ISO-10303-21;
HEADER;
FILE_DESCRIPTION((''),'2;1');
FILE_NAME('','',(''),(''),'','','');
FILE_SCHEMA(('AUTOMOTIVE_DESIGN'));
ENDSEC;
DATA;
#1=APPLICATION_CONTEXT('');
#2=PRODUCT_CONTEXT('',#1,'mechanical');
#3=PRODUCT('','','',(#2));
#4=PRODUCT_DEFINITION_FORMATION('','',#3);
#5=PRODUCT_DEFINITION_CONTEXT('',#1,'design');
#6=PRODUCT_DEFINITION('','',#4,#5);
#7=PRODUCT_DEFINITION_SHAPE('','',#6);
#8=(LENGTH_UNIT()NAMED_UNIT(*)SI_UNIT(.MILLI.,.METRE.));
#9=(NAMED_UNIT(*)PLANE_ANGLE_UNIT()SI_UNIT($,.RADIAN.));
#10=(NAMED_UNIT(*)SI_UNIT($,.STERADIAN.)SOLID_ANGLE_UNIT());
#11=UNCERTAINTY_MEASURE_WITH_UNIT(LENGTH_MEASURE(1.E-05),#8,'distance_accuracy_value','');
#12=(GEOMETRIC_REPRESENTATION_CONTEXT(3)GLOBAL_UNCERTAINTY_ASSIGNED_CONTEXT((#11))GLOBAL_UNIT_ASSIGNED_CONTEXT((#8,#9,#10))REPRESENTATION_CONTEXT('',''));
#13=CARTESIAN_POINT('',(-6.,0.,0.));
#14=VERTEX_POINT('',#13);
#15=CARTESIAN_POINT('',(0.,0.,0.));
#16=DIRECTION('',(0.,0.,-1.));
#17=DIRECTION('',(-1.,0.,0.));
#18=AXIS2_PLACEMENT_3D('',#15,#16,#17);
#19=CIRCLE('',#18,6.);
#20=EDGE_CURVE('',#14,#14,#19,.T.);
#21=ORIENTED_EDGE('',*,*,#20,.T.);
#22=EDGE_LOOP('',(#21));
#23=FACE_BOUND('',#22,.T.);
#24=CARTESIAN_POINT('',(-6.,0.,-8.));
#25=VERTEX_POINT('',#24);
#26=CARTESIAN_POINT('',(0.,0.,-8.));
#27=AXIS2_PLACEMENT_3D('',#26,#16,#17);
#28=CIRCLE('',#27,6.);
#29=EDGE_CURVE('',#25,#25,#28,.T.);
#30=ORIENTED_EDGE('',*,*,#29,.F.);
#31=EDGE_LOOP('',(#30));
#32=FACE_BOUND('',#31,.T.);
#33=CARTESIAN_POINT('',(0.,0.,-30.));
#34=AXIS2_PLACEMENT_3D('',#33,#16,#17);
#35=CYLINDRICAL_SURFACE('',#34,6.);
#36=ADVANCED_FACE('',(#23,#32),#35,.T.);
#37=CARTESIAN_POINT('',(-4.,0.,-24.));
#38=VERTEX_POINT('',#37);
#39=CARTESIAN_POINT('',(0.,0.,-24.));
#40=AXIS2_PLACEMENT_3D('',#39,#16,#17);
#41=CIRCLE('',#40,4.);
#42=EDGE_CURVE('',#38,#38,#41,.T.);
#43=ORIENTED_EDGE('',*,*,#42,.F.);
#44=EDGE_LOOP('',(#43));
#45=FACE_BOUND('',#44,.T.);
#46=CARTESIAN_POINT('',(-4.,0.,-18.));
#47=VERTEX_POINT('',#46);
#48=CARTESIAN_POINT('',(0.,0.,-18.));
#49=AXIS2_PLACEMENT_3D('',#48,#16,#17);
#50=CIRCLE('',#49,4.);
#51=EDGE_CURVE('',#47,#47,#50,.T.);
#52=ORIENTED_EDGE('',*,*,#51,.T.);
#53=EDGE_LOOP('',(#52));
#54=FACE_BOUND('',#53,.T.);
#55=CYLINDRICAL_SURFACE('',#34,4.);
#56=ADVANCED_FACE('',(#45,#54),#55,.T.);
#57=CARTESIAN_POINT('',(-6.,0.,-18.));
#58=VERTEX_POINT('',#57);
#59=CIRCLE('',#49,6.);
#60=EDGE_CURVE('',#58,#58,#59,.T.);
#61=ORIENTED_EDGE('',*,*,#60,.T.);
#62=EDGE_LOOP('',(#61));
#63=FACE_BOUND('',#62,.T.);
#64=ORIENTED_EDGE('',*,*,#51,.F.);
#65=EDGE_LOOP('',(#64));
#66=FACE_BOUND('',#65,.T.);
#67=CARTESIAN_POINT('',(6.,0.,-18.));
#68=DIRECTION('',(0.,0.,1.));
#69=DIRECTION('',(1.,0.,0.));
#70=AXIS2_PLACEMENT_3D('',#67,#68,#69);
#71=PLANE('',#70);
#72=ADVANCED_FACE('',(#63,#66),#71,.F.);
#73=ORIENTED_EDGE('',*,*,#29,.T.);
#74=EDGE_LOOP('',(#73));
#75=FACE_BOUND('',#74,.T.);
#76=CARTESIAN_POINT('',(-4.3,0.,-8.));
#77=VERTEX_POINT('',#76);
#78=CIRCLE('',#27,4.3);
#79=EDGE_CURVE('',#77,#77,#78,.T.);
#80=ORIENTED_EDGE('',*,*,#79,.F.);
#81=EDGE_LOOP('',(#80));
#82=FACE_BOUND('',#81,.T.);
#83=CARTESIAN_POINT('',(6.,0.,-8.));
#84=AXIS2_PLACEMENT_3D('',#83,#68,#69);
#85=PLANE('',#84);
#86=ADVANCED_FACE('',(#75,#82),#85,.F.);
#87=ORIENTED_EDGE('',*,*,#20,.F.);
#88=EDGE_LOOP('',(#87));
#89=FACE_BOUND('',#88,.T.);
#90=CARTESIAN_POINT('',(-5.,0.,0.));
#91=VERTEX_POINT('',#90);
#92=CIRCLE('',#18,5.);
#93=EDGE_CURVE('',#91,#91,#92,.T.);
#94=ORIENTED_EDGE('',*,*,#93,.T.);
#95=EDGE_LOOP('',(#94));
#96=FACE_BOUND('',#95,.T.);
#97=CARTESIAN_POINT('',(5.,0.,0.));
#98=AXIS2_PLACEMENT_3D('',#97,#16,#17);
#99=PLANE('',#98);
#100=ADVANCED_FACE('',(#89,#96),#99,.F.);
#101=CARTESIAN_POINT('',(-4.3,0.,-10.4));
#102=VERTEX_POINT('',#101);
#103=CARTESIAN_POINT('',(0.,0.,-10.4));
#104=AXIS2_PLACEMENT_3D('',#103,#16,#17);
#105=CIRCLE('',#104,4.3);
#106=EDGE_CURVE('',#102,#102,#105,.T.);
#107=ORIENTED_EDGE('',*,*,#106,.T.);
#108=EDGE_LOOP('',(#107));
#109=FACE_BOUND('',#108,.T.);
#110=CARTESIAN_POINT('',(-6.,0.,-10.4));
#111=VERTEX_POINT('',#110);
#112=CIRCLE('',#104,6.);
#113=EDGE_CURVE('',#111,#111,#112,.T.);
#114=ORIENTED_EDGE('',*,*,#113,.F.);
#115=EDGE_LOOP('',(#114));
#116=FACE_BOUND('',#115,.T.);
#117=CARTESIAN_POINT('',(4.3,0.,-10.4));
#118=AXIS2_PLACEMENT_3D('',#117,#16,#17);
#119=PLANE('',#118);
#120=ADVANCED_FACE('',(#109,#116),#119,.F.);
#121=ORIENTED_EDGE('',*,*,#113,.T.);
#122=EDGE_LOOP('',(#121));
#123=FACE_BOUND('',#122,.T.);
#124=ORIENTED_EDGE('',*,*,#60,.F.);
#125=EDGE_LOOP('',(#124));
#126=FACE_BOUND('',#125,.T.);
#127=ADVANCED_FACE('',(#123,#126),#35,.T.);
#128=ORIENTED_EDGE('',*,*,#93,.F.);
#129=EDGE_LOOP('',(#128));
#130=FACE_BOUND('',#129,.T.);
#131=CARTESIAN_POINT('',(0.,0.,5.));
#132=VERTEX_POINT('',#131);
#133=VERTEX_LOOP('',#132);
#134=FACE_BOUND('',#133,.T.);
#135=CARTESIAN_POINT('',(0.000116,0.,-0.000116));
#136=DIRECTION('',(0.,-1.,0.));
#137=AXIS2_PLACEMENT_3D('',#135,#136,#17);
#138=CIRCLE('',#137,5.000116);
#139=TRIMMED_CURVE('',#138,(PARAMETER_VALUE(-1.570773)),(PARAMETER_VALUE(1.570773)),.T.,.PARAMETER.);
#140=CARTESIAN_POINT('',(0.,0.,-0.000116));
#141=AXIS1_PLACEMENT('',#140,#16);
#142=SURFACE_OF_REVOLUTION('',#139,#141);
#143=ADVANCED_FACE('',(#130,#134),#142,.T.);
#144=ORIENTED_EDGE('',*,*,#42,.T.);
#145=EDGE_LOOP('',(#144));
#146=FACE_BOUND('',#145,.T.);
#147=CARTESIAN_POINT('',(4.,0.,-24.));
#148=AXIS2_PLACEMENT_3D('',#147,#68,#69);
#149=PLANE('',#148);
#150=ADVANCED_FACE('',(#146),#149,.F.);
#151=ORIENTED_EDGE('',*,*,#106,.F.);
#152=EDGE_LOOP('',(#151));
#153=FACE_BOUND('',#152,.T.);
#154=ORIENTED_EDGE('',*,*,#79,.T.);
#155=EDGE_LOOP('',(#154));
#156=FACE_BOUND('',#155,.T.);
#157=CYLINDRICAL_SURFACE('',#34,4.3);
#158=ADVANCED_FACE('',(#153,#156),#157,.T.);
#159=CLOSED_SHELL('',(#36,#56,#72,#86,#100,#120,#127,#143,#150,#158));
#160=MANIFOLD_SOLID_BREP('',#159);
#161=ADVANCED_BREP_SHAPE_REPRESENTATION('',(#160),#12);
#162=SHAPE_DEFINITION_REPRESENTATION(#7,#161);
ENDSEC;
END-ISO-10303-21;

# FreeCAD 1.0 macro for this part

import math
import FreeCAD as App
import Part
import Sketcher
from FreeCAD import Vector
Q = App.Units.Quantity

doc = App.newDocument("Part")
body = doc.addObject("PartDesign::Body", "Body")

# Sketch on XZ plane
sketch1 = body.newObject("Sketcher::SketchObject", "Sketch")
sketch1.AttachmentSupport = (doc.getObject("XZ_Plane"), [""])
sketch1.MapMode = "FlatFace"
sketch1.addGeometry(Part.LineSegment(Vector(5, 0, 0), Vector(6, 0, 0)), False)
sketch1.addGeometry(Part.LineSegment(Vector(6, 0, 0), Vector(6, -8, 0)), False)
sketch1.addGeometry(Part.LineSegment(Vector(6, -8, 0), Vector(4.3, -8, 0)), False)
sketch1.addGeometry(Part.LineSegment(Vector(4.3, -8, 0), Vector(4.3, -10.4, 0)), False)
sketch1.addGeometry(Part.LineSegment(Vector(4.3, -10.4, 0), Vector(6, -10.4, 0)), False)
sketch1.addGeometry(Part.LineSegment(Vector(6, -10.4, 0), Vector(6, -18, 0)), False)
sketch1.addGeometry(Part.LineSegment(Vector(6, -18, 0), Vector(4, -18, 0)), False)
sketch1.addGeometry(Part.LineSegment(Vector(4, -18, 0), Vector(4, -24, 0)), False)
sketch1.addGeometry(Part.LineSegment(Vector(4, -24, 0), Vector(0, -24, 0)), False)
sketch1.addGeometry(Part.LineSegment(Vector(0, -24, 0), Vector(0, 5, 0)), False)
sketch1.addGeometry(Part.ArcOfCircle(Part.Circle(Vector(0, 0, 0), Vector(0, 0, 1), 5), math.radians(0), math.radians(90)), False)
sketch1.addConstraint(Sketcher.Constraint("Coincident", 0, 2, 1, 1))
sketch1.addConstraint(Sketcher.Constraint("Coincident", 1, 2, 2, 1))
sketch1.addConstraint(Sketcher.Constraint("Coincident", 2, 2, 3, 1))
sketch1.addConstraint(Sketcher.Constraint("Coincident", 3, 2, 4, 1))
sketch1.addConstraint(Sketcher.Constraint("Coincident", 4, 2, 5, 1))
sketch1.addConstraint(Sketcher.Constraint("Coincident", 5, 2, 6, 1))
sketch1.addConstraint(Sketcher.Constraint("Coincident", 6, 2, 7, 1))
sketch1.addConstraint(Sketcher.Constraint("Coincident", 7, 2, 8, 1))
sketch1.addConstraint(Sketcher.Constraint("Coincident", 8, 2, 9, 1))
sketch1.addConstraint(Sketcher.Constraint("Coincident", 9, 2, 10, 2))
sketch1.addConstraint(Sketcher.Constraint("Coincident", 10, 1, 0, 1))
sketch1.addConstraint(Sketcher.Constraint("Horizontal", 0))
sketch1.addConstraint(Sketcher.Constraint("Vertical", 1))
sketch1.addConstraint(Sketcher.Constraint("Horizontal", 2))
sketch1.addConstraint(Sketcher.Constraint("Vertical", 3))
sketch1.addConstraint(Sketcher.Constraint("Horizontal", 4))
sketch1.addConstraint(Sketcher.Constraint("Vertical", 5))
sketch1.addConstraint(Sketcher.Constraint("Horizontal", 6))
sketch1.addConstraint(Sketcher.Constraint("Vertical", 7))
sketch1.addConstraint(Sketcher.Constraint("Horizontal", 8))
sketch1.addConstraint(Sketcher.Constraint("Vertical", 9))
sketch1.addConstraint(Sketcher.Constraint("PointOnObject", 0, 2, -1))
sketch1.addConstraint(Sketcher.Constraint("PointOnObject", 8, 2, -2))
sketch1.addConstraint(Sketcher.Constraint("Vertical", 1, 2, 4, 2))
sketch1.addConstraint(Sketcher.Constraint("DistanceX", 0, 1, 0, 2, Q("1 mm")))
sketch1.addConstraint(Sketcher.Constraint("DistanceX", 6, 2, 6, 1, Q("2 mm")))
sketch1.addConstraint(Sketcher.Constraint("DistanceX", 8, 2, 8, 1, Q("4 mm")))
sketch1.addConstraint(Sketcher.Constraint("DistanceY", 1, 2, 1, 1, Q("8 mm")))
sketch1.addConstraint(Sketcher.Constraint("DistanceY", 7, 2, 7, 1, Q("6 mm")))
sketch1.addConstraint(Sketcher.Constraint("DistanceY", 9, 1, 9, 2, Q("29 mm")))
sketch1.addConstraint(Sketcher.Constraint("DistanceX", 2, 2, 2, 1, Q("1.7 mm")))
sketch1.addConstraint(Sketcher.Constraint("DistanceY", 3, 2, 3, 1, Q("2.4 mm")))
sketch1.addConstraint(Sketcher.Constraint("DistanceY", 5, 2, 5, 1, Q("7.6 mm")))
sketch1.addConstraint(Sketcher.Constraint("Radius", 10, Q("5.000116 mm")))
revolution = body.newObject("PartDesign::Revolution", "Revolution")
revolution.Profile = sketch1
revolution.ReferenceAxis = (sketch1, ["V_Axis"])
revolution.Angle = 360

doc.recompute()
